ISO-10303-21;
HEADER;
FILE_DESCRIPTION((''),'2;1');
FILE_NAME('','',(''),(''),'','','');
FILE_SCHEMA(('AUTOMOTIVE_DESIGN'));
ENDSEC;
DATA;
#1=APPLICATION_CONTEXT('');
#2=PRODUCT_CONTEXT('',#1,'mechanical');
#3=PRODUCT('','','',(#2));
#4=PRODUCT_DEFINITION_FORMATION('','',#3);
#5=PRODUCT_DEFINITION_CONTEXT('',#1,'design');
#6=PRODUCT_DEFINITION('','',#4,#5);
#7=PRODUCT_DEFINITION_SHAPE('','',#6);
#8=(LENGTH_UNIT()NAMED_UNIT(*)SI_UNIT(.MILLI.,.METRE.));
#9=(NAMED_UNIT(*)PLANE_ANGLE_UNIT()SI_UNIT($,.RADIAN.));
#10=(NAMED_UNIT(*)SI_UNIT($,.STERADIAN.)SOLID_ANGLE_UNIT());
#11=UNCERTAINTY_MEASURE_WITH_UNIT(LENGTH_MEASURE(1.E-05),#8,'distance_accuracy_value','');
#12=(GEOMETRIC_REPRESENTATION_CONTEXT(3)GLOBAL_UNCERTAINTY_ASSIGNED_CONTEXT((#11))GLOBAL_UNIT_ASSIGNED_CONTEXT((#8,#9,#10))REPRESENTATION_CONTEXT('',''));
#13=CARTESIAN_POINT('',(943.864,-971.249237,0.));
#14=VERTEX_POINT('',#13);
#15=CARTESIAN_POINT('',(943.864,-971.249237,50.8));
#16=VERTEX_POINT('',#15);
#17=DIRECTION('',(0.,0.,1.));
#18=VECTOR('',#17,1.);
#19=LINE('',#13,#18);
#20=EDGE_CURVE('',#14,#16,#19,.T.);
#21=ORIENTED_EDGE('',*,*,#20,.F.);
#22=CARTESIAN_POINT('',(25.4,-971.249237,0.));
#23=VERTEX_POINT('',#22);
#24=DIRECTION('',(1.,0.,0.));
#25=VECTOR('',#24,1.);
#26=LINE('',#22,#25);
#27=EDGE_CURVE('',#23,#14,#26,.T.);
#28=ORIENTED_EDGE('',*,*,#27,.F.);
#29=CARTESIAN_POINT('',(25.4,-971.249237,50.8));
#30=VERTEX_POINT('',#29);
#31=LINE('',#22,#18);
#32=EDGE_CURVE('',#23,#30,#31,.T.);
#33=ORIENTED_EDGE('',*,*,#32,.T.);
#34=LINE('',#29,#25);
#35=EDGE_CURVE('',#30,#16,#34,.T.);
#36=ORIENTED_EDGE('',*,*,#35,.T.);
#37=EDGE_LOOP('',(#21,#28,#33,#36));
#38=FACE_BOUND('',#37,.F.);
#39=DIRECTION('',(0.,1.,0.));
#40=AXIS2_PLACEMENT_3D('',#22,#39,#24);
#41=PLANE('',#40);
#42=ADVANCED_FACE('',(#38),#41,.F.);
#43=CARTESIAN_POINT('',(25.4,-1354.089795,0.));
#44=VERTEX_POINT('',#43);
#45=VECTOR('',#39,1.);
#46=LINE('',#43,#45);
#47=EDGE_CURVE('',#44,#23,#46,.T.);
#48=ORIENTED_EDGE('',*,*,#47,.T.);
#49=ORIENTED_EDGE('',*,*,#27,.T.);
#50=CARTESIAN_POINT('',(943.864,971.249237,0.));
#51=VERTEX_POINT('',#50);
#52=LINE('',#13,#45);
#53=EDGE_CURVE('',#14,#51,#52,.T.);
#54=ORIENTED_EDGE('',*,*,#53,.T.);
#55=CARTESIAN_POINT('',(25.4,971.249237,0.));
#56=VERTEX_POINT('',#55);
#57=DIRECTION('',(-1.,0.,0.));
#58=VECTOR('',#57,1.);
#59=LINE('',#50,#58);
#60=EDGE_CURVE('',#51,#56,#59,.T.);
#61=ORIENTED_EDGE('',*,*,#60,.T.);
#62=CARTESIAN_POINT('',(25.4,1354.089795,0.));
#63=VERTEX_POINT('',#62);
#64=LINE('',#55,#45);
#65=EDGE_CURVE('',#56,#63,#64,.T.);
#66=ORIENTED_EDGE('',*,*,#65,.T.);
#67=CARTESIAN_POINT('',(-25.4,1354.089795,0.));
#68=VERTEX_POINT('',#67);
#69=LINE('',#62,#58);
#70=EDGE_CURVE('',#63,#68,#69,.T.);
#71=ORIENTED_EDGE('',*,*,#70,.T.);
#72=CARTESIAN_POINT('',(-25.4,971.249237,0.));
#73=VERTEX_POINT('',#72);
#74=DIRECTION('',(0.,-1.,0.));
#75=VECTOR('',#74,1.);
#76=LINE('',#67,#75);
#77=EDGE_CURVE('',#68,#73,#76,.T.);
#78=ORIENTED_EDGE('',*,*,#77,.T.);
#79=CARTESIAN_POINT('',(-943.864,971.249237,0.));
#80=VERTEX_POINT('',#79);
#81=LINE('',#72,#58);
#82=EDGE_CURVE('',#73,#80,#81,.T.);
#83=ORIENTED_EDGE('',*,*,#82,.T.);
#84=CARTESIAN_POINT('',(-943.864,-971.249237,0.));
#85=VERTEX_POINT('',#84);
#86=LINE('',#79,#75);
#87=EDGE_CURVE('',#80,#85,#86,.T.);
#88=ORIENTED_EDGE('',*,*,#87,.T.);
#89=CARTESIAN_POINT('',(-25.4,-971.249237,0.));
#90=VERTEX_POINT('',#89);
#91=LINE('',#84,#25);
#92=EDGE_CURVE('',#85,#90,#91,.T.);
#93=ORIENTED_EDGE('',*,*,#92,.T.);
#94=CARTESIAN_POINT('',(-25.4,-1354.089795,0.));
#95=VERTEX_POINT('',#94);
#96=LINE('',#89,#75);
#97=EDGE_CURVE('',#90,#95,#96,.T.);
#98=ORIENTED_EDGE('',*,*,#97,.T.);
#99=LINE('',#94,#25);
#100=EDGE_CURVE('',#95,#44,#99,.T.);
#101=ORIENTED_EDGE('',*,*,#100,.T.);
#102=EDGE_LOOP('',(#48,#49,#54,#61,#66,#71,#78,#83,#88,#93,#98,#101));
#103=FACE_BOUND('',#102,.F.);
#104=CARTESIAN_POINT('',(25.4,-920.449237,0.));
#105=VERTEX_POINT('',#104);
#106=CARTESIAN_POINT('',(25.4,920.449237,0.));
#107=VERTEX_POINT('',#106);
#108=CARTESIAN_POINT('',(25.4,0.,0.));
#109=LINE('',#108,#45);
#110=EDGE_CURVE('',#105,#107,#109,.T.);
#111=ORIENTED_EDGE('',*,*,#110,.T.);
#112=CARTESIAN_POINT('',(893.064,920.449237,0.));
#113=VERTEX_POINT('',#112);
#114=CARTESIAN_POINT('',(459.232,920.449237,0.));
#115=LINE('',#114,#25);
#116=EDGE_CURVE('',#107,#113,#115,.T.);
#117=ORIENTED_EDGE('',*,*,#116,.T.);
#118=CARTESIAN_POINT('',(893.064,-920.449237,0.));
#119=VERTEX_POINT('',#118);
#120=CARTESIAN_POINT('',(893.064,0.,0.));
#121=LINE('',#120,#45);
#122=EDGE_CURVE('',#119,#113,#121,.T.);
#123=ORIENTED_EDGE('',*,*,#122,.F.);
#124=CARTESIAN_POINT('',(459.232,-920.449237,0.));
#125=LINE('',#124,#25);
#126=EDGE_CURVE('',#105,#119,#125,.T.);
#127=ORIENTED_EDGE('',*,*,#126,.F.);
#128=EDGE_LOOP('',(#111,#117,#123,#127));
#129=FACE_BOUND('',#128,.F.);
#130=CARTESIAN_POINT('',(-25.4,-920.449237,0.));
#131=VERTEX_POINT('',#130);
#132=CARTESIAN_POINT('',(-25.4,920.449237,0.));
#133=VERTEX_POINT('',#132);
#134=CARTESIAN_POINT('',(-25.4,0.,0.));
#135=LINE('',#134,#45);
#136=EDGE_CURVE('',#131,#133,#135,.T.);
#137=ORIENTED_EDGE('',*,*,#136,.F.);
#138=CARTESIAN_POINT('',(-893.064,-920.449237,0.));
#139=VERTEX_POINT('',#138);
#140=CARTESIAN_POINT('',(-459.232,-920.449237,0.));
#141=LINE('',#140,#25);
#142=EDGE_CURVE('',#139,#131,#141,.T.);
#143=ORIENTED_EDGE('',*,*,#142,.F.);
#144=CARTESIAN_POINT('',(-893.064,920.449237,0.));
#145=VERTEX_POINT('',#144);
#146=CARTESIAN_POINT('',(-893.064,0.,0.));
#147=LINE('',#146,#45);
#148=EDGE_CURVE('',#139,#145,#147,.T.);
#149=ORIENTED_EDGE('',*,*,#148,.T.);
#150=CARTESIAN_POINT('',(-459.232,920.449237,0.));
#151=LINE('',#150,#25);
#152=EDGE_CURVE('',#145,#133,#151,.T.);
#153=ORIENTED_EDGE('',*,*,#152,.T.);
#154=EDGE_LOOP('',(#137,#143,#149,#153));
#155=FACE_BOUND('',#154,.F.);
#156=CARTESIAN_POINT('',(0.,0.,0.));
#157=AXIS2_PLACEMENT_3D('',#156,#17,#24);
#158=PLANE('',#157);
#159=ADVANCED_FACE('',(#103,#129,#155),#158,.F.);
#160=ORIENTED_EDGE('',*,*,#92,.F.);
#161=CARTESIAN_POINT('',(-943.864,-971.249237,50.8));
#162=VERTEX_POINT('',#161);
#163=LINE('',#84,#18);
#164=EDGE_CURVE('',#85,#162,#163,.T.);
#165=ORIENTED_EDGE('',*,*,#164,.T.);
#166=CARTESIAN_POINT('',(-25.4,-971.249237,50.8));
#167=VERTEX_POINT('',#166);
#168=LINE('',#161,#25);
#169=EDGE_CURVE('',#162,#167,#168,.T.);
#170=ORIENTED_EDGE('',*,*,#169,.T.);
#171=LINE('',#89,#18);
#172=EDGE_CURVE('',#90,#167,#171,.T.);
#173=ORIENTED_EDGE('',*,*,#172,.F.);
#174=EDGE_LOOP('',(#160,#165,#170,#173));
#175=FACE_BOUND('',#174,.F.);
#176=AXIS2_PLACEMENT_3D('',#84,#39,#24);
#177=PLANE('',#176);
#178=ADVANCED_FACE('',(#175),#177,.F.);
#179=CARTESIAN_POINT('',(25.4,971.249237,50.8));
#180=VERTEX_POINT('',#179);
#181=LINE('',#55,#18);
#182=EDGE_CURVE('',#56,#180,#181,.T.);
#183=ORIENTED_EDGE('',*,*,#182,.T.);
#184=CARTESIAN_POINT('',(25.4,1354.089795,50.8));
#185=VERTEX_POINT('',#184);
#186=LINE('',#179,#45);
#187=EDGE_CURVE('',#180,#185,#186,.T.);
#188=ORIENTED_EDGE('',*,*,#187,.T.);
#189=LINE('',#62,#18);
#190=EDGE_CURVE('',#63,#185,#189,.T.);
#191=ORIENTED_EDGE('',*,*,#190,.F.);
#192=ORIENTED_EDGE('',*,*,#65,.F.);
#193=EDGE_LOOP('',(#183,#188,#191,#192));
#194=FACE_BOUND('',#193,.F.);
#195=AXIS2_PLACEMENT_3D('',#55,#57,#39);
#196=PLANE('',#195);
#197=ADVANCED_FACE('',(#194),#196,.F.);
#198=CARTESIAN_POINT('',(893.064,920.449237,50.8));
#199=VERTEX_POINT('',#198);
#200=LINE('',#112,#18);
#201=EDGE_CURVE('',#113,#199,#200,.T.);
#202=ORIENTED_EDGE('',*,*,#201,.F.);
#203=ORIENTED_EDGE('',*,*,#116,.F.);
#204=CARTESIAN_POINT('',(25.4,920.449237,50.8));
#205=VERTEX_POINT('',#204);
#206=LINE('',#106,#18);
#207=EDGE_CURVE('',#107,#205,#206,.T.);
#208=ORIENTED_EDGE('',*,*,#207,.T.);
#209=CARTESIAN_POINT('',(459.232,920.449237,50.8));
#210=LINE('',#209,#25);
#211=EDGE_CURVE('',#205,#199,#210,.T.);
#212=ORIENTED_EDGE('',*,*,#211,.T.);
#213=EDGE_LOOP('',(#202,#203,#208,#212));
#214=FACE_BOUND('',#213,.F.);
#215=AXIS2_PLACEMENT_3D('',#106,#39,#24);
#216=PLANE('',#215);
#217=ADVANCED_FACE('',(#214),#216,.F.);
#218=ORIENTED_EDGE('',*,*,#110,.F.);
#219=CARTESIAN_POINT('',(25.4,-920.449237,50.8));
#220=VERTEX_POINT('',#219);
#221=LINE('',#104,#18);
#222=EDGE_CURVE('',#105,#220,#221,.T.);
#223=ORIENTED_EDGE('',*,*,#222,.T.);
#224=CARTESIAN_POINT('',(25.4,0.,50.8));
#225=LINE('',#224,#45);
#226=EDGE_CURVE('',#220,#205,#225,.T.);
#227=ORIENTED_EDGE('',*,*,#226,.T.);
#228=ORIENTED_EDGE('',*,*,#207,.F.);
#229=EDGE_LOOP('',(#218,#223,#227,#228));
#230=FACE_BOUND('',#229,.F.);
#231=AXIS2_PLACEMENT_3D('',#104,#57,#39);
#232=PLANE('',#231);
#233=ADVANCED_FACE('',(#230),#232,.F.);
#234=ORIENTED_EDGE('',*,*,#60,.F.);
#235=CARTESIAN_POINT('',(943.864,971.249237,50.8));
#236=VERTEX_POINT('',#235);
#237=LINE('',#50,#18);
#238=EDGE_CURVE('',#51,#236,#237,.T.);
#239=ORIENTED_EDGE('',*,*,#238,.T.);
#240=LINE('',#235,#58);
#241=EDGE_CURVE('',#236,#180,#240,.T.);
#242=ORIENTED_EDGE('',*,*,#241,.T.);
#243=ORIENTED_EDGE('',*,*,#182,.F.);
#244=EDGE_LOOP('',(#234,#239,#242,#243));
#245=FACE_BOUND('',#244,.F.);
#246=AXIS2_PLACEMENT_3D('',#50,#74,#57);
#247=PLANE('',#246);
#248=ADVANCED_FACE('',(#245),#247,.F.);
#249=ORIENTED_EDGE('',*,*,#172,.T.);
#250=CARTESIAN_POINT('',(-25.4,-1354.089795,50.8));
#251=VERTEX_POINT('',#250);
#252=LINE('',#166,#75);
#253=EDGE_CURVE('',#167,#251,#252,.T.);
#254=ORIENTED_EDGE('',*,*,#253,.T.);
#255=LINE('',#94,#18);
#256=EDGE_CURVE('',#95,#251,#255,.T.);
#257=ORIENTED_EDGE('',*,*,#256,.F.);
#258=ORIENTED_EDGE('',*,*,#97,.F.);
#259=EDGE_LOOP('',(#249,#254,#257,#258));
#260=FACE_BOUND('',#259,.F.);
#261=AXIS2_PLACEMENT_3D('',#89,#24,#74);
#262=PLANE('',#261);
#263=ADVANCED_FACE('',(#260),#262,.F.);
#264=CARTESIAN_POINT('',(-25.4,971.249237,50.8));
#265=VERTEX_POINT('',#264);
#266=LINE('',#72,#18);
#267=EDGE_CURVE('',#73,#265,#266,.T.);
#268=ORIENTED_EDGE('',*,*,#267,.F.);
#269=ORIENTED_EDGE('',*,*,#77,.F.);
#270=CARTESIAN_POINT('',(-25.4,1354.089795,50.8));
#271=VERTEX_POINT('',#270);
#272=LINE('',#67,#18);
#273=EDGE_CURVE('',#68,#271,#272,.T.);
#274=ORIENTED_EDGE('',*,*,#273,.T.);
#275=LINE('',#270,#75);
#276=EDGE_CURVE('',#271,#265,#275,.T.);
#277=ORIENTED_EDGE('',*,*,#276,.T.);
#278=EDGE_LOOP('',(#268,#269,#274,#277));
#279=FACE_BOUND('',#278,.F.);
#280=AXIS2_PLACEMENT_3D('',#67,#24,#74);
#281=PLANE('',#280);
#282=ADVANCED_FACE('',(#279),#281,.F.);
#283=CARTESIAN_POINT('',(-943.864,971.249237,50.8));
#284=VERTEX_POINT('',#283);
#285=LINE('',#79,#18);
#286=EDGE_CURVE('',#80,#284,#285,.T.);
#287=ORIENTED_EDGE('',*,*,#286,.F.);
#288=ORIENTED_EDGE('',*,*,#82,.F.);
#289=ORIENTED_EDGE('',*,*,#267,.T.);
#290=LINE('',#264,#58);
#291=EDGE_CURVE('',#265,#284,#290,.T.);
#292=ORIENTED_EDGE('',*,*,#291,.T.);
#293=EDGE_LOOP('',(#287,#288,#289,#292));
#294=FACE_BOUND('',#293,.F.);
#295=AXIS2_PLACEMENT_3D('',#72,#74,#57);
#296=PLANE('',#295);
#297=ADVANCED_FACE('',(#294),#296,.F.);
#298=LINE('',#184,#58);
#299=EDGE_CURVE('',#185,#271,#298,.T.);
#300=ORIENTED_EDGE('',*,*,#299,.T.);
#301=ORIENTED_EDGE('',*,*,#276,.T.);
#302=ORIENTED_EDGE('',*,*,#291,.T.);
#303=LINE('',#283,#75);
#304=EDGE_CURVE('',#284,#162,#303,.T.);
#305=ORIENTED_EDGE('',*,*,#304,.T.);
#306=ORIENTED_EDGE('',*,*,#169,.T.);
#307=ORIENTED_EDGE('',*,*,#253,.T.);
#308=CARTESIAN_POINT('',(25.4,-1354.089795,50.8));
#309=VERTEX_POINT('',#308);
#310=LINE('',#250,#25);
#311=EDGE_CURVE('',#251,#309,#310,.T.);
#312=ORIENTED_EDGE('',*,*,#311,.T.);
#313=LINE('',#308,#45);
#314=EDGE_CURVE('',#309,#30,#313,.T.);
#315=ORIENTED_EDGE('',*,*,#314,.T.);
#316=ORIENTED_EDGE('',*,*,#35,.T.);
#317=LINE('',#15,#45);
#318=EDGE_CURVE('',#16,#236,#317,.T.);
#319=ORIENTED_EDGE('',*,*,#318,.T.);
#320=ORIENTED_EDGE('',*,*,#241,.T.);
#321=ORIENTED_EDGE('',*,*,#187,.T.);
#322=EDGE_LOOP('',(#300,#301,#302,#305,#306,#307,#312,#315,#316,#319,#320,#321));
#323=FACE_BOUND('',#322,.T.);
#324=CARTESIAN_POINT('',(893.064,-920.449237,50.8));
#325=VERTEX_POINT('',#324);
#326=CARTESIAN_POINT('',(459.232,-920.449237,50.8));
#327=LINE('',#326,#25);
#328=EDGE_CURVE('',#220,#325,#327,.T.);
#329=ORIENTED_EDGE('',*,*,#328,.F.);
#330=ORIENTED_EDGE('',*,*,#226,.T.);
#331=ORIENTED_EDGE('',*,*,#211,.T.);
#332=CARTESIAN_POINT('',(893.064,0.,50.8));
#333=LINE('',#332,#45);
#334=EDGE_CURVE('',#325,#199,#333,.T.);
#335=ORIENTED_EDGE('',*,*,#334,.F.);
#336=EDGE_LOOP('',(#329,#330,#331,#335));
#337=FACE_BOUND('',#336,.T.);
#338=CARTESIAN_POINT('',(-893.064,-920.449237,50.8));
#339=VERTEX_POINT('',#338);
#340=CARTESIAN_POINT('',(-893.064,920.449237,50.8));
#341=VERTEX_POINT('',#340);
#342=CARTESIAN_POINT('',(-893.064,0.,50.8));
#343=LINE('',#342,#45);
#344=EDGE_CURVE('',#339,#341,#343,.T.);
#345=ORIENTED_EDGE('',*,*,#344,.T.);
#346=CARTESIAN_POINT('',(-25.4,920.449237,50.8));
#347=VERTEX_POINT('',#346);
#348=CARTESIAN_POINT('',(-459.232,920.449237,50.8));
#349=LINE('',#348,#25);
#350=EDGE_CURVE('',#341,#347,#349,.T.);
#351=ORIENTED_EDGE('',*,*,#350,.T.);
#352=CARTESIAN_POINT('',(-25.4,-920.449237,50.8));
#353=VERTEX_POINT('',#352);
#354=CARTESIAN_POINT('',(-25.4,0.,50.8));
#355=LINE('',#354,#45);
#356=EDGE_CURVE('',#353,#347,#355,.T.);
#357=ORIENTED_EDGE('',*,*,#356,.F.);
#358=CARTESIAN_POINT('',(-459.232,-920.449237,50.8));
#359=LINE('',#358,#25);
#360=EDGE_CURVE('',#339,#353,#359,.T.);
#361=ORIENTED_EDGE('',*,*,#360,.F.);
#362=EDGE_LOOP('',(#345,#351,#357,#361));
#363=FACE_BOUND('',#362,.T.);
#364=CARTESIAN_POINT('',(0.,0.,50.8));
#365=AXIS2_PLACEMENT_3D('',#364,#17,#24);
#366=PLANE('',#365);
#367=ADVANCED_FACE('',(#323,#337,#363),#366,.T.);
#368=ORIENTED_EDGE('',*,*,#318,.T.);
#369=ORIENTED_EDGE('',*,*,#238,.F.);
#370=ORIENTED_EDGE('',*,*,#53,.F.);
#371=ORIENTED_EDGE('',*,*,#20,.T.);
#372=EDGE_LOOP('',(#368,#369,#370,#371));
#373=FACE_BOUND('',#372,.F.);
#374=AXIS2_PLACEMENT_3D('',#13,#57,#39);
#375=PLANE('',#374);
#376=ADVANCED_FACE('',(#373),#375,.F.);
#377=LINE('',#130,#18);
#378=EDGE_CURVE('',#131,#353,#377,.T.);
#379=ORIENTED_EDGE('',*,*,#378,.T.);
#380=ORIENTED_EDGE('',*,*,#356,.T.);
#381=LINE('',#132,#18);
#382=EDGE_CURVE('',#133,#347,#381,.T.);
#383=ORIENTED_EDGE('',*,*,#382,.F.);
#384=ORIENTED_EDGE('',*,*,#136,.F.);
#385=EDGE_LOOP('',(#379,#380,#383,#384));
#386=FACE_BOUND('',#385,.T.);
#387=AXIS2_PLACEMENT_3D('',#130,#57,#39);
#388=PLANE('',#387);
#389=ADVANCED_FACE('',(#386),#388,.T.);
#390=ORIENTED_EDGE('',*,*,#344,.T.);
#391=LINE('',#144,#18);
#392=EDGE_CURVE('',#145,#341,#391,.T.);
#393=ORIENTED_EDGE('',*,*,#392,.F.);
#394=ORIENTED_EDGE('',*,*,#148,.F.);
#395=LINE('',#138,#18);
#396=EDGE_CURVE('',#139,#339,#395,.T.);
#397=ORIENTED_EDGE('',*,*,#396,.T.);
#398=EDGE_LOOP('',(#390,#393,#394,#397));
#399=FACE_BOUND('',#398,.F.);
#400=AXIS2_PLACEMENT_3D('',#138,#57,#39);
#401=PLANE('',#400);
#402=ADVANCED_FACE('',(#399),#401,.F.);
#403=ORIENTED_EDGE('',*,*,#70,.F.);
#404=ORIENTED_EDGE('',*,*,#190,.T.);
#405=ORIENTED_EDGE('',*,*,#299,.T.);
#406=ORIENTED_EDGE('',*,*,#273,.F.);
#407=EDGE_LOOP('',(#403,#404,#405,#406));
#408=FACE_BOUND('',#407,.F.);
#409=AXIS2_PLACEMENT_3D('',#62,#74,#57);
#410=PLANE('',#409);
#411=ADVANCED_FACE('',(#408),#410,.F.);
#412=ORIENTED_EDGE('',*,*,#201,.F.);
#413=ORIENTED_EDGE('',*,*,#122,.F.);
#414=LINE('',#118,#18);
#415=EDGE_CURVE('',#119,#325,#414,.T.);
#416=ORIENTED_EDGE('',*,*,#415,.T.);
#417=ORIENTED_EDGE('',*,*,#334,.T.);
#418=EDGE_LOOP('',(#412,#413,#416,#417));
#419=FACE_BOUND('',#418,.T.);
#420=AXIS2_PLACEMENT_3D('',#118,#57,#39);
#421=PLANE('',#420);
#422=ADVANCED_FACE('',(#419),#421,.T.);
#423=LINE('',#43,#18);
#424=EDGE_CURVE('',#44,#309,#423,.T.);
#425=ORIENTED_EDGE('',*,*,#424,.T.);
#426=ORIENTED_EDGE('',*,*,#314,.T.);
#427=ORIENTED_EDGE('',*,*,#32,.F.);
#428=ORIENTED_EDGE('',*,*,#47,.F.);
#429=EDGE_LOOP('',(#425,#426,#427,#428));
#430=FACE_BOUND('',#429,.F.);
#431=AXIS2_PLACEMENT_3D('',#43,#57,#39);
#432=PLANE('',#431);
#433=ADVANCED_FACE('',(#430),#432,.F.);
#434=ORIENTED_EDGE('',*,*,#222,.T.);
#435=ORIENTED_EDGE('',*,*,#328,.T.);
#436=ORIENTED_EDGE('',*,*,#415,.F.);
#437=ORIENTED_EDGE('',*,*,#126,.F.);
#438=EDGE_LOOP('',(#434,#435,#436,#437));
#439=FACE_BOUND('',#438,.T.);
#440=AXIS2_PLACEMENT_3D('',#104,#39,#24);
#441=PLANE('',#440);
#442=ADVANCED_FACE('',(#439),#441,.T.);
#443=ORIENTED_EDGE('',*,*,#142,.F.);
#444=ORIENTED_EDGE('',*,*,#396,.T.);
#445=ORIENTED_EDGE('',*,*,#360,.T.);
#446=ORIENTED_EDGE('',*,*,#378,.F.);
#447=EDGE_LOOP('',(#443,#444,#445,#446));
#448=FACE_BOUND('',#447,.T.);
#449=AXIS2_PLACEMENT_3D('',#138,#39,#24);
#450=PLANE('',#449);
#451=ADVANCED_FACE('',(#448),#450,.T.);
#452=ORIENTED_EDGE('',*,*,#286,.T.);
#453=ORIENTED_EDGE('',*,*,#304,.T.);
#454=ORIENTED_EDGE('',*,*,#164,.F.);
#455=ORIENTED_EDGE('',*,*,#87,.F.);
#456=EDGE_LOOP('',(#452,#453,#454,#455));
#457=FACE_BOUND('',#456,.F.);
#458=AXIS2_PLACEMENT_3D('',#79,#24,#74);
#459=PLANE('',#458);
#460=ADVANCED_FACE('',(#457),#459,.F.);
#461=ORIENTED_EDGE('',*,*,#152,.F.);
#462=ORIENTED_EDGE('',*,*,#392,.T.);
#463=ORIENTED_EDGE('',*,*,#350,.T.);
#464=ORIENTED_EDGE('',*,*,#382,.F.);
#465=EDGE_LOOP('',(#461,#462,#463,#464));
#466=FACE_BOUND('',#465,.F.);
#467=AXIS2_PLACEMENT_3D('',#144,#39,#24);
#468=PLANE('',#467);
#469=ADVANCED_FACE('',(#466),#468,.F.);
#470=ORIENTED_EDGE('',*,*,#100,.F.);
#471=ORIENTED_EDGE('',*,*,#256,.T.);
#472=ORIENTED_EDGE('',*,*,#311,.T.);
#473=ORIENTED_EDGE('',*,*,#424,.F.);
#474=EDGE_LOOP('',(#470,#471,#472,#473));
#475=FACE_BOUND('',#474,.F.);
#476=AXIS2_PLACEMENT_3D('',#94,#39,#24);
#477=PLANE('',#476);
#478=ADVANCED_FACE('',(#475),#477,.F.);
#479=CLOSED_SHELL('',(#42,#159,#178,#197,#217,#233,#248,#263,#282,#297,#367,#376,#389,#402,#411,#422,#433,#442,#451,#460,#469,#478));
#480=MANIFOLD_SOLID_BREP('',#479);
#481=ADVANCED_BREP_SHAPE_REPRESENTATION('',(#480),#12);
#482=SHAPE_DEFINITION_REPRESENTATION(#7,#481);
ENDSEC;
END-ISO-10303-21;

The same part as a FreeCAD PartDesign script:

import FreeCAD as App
import Part
import Sketcher

V = App.Vector
Q = App.Units.Quantity

doc = App.newDocument("Part")
body = doc.addObject("PartDesign::Body", "Body")

sketch1 = body.newObject("Sketcher::SketchObject", "Sketch")
sketch1.AttachmentSupport = (doc.getObject("XY_Plane"), [""])
sketch1.MapMode = "FlatFace"
sketch1.addGeometry([
    Part.LineSegment(V(-944, 971, 0), V(-944, -971, 0)),
    Part.LineSegment(V(-944, -971, 0), V(-25, -971, 0)),
    Part.LineSegment(V(-25, -971, 0), V(-25, -1354, 0)),
    Part.LineSegment(V(-25, -1354, 0), V(25, -1354, 0)),
    Part.LineSegment(V(25, -1354, 0), V(25, -971, 0)),
    Part.LineSegment(V(25, -971, 0), V(944, -971, 0)),
    Part.LineSegment(V(944, -971, 0), V(944, 971, 0)),
    Part.LineSegment(V(944, 971, 0), V(25, 971, 0)),
    Part.LineSegment(V(25, 971, 0), V(25, 1354, 0)),
    Part.LineSegment(V(25, 1354, 0), V(-25, 1354, 0)),
    Part.LineSegment(V(-25, 1354, 0), V(-25, 971, 0)),
    Part.LineSegment(V(-25, 971, 0), V(-944, 971, 0)),
    Part.LineSegment(V(-25, -920, 0), V(-893, -920, 0)),
    Part.LineSegment(V(-893, -920, 0), V(-893, 920, 0)),
    Part.LineSegment(V(-893, 920, 0), V(-25, 920, 0)),
    Part.LineSegment(V(-25, 920, 0), V(-25, -920, 0)),
    Part.LineSegment(V(893, -920, 0), V(25, -920, 0)),
    Part.LineSegment(V(25, -920, 0), V(25, 920, 0)),
    Part.LineSegment(V(25, 920, 0), V(893, 920, 0)),
    Part.LineSegment(V(893, 920, 0), V(893, -920, 0)),
], False)
sketch1.addConstraint([
    Sketcher.Constraint("Coincident", 0, 2, 1, 1),
    Sketcher.Constraint("Coincident", 1, 2, 2, 1),
    Sketcher.Constraint("Coincident", 2, 2, 3, 1),
    Sketcher.Constraint("Coincident", 3, 2, 4, 1),
    Sketcher.Constraint("Coincident", 4, 2, 5, 1),
    Sketcher.Constraint("Coincident", 5, 2, 6, 1),
    Sketcher.Constraint("Coincident", 6, 2, 7, 1),
    Sketcher.Constraint("Coincident", 7, 2, 8, 1),
    Sketcher.Constraint("Coincident", 8, 2, 9, 1),
    Sketcher.Constraint("Coincident", 9, 2, 10, 1),
    Sketcher.Constraint("Coincident", 10, 2, 11, 1),
    Sketcher.Constraint("Coincident", 11, 2, 0, 1),
    Sketcher.Constraint("Coincident", 12, 2, 13, 1),
    Sketcher.Constraint("Coincident", 13, 2, 14, 1),
    Sketcher.Constraint("Coincident", 14, 2, 15, 1),
    Sketcher.Constraint("Coincident", 15, 2, 12, 1),
    Sketcher.Constraint("Coincident", 16, 2, 17, 1),
    Sketcher.Constraint("Coincident", 17, 2, 18, 1),
    Sketcher.Constraint("Coincident", 18, 2, 19, 1),
    Sketcher.Constraint("Coincident", 19, 2, 16, 1),
    Sketcher.Constraint("Vertical", 0),
    Sketcher.Constraint("Horizontal", 1),
    Sketcher.Constraint("Vertical", 2),
    Sketcher.Constraint("Horizontal", 3),
    Sketcher.Constraint("Vertical", 4),
    Sketcher.Constraint("Horizontal", 5),
    Sketcher.Constraint("Vertical", 6),
    Sketcher.Constraint("Horizontal", 7),
    Sketcher.Constraint("Vertical", 8),
    Sketcher.Constraint("Horizontal", 9),
    Sketcher.Constraint("Vertical", 10),
    Sketcher.Constraint("Horizontal", 11),
    Sketcher.Constraint("Horizontal", 12),
    Sketcher.Constraint("Vertical", 13),
    Sketcher.Constraint("Horizontal", 14),
    Sketcher.Constraint("Vertical", 15),
    Sketcher.Constraint("Horizontal", 16),
    Sketcher.Constraint("Vertical", 17),
    Sketcher.Constraint("Horizontal", 18),
    Sketcher.Constraint("Vertical", 19),
    Sketcher.Constraint("Symmetric", 0, 2, 6, 2, -1, 1),
    Sketcher.Constraint("Symmetric", 2, 2, 8, 2, -1, 1),
    Sketcher.Constraint("Symmetric", 4, 2, 10, 2, -1, 1),
    Sketcher.Constraint("Symmetric", 14, 2, 16, 2, -1, 1),
    Sketcher.Constraint("Symmetric", 12, 2, 18, 2, -1, 1),
    Sketcher.Constraint("Symmetric", 1, 2, 4, 2, -2),
    Sketcher.Constraint("Horizontal", 15, 2, 16, 2),
    Sketcher.Constraint("Vertical", 10, 2, 14, 2),
    Sketcher.Constraint("DistanceX", 3, 1, 3, 2, Q("2 in")),
    Sketcher.Constraint("DistanceX", 0, 2, 12, 2, Q("2 in")),
    Sketcher.Constraint("DistanceY", 0, 2, 12, 2, Q("2 in")),
    Sketcher.Constraint("DistanceX", 1, 1, 1, 2, Q("36.16 in")),
    Sketcher.Constraint("DistanceY", 2, 2, 2, 1, 382.840558),
    Sketcher.Constraint("DistanceY", 0, 2, 0, 1, 1942.498474),
])
pad1 = body.newObject("PartDesign::Pad", "Pad")
pad1.Profile = sketch1
pad1.Length = Q("2 in")

doc.recompute()
